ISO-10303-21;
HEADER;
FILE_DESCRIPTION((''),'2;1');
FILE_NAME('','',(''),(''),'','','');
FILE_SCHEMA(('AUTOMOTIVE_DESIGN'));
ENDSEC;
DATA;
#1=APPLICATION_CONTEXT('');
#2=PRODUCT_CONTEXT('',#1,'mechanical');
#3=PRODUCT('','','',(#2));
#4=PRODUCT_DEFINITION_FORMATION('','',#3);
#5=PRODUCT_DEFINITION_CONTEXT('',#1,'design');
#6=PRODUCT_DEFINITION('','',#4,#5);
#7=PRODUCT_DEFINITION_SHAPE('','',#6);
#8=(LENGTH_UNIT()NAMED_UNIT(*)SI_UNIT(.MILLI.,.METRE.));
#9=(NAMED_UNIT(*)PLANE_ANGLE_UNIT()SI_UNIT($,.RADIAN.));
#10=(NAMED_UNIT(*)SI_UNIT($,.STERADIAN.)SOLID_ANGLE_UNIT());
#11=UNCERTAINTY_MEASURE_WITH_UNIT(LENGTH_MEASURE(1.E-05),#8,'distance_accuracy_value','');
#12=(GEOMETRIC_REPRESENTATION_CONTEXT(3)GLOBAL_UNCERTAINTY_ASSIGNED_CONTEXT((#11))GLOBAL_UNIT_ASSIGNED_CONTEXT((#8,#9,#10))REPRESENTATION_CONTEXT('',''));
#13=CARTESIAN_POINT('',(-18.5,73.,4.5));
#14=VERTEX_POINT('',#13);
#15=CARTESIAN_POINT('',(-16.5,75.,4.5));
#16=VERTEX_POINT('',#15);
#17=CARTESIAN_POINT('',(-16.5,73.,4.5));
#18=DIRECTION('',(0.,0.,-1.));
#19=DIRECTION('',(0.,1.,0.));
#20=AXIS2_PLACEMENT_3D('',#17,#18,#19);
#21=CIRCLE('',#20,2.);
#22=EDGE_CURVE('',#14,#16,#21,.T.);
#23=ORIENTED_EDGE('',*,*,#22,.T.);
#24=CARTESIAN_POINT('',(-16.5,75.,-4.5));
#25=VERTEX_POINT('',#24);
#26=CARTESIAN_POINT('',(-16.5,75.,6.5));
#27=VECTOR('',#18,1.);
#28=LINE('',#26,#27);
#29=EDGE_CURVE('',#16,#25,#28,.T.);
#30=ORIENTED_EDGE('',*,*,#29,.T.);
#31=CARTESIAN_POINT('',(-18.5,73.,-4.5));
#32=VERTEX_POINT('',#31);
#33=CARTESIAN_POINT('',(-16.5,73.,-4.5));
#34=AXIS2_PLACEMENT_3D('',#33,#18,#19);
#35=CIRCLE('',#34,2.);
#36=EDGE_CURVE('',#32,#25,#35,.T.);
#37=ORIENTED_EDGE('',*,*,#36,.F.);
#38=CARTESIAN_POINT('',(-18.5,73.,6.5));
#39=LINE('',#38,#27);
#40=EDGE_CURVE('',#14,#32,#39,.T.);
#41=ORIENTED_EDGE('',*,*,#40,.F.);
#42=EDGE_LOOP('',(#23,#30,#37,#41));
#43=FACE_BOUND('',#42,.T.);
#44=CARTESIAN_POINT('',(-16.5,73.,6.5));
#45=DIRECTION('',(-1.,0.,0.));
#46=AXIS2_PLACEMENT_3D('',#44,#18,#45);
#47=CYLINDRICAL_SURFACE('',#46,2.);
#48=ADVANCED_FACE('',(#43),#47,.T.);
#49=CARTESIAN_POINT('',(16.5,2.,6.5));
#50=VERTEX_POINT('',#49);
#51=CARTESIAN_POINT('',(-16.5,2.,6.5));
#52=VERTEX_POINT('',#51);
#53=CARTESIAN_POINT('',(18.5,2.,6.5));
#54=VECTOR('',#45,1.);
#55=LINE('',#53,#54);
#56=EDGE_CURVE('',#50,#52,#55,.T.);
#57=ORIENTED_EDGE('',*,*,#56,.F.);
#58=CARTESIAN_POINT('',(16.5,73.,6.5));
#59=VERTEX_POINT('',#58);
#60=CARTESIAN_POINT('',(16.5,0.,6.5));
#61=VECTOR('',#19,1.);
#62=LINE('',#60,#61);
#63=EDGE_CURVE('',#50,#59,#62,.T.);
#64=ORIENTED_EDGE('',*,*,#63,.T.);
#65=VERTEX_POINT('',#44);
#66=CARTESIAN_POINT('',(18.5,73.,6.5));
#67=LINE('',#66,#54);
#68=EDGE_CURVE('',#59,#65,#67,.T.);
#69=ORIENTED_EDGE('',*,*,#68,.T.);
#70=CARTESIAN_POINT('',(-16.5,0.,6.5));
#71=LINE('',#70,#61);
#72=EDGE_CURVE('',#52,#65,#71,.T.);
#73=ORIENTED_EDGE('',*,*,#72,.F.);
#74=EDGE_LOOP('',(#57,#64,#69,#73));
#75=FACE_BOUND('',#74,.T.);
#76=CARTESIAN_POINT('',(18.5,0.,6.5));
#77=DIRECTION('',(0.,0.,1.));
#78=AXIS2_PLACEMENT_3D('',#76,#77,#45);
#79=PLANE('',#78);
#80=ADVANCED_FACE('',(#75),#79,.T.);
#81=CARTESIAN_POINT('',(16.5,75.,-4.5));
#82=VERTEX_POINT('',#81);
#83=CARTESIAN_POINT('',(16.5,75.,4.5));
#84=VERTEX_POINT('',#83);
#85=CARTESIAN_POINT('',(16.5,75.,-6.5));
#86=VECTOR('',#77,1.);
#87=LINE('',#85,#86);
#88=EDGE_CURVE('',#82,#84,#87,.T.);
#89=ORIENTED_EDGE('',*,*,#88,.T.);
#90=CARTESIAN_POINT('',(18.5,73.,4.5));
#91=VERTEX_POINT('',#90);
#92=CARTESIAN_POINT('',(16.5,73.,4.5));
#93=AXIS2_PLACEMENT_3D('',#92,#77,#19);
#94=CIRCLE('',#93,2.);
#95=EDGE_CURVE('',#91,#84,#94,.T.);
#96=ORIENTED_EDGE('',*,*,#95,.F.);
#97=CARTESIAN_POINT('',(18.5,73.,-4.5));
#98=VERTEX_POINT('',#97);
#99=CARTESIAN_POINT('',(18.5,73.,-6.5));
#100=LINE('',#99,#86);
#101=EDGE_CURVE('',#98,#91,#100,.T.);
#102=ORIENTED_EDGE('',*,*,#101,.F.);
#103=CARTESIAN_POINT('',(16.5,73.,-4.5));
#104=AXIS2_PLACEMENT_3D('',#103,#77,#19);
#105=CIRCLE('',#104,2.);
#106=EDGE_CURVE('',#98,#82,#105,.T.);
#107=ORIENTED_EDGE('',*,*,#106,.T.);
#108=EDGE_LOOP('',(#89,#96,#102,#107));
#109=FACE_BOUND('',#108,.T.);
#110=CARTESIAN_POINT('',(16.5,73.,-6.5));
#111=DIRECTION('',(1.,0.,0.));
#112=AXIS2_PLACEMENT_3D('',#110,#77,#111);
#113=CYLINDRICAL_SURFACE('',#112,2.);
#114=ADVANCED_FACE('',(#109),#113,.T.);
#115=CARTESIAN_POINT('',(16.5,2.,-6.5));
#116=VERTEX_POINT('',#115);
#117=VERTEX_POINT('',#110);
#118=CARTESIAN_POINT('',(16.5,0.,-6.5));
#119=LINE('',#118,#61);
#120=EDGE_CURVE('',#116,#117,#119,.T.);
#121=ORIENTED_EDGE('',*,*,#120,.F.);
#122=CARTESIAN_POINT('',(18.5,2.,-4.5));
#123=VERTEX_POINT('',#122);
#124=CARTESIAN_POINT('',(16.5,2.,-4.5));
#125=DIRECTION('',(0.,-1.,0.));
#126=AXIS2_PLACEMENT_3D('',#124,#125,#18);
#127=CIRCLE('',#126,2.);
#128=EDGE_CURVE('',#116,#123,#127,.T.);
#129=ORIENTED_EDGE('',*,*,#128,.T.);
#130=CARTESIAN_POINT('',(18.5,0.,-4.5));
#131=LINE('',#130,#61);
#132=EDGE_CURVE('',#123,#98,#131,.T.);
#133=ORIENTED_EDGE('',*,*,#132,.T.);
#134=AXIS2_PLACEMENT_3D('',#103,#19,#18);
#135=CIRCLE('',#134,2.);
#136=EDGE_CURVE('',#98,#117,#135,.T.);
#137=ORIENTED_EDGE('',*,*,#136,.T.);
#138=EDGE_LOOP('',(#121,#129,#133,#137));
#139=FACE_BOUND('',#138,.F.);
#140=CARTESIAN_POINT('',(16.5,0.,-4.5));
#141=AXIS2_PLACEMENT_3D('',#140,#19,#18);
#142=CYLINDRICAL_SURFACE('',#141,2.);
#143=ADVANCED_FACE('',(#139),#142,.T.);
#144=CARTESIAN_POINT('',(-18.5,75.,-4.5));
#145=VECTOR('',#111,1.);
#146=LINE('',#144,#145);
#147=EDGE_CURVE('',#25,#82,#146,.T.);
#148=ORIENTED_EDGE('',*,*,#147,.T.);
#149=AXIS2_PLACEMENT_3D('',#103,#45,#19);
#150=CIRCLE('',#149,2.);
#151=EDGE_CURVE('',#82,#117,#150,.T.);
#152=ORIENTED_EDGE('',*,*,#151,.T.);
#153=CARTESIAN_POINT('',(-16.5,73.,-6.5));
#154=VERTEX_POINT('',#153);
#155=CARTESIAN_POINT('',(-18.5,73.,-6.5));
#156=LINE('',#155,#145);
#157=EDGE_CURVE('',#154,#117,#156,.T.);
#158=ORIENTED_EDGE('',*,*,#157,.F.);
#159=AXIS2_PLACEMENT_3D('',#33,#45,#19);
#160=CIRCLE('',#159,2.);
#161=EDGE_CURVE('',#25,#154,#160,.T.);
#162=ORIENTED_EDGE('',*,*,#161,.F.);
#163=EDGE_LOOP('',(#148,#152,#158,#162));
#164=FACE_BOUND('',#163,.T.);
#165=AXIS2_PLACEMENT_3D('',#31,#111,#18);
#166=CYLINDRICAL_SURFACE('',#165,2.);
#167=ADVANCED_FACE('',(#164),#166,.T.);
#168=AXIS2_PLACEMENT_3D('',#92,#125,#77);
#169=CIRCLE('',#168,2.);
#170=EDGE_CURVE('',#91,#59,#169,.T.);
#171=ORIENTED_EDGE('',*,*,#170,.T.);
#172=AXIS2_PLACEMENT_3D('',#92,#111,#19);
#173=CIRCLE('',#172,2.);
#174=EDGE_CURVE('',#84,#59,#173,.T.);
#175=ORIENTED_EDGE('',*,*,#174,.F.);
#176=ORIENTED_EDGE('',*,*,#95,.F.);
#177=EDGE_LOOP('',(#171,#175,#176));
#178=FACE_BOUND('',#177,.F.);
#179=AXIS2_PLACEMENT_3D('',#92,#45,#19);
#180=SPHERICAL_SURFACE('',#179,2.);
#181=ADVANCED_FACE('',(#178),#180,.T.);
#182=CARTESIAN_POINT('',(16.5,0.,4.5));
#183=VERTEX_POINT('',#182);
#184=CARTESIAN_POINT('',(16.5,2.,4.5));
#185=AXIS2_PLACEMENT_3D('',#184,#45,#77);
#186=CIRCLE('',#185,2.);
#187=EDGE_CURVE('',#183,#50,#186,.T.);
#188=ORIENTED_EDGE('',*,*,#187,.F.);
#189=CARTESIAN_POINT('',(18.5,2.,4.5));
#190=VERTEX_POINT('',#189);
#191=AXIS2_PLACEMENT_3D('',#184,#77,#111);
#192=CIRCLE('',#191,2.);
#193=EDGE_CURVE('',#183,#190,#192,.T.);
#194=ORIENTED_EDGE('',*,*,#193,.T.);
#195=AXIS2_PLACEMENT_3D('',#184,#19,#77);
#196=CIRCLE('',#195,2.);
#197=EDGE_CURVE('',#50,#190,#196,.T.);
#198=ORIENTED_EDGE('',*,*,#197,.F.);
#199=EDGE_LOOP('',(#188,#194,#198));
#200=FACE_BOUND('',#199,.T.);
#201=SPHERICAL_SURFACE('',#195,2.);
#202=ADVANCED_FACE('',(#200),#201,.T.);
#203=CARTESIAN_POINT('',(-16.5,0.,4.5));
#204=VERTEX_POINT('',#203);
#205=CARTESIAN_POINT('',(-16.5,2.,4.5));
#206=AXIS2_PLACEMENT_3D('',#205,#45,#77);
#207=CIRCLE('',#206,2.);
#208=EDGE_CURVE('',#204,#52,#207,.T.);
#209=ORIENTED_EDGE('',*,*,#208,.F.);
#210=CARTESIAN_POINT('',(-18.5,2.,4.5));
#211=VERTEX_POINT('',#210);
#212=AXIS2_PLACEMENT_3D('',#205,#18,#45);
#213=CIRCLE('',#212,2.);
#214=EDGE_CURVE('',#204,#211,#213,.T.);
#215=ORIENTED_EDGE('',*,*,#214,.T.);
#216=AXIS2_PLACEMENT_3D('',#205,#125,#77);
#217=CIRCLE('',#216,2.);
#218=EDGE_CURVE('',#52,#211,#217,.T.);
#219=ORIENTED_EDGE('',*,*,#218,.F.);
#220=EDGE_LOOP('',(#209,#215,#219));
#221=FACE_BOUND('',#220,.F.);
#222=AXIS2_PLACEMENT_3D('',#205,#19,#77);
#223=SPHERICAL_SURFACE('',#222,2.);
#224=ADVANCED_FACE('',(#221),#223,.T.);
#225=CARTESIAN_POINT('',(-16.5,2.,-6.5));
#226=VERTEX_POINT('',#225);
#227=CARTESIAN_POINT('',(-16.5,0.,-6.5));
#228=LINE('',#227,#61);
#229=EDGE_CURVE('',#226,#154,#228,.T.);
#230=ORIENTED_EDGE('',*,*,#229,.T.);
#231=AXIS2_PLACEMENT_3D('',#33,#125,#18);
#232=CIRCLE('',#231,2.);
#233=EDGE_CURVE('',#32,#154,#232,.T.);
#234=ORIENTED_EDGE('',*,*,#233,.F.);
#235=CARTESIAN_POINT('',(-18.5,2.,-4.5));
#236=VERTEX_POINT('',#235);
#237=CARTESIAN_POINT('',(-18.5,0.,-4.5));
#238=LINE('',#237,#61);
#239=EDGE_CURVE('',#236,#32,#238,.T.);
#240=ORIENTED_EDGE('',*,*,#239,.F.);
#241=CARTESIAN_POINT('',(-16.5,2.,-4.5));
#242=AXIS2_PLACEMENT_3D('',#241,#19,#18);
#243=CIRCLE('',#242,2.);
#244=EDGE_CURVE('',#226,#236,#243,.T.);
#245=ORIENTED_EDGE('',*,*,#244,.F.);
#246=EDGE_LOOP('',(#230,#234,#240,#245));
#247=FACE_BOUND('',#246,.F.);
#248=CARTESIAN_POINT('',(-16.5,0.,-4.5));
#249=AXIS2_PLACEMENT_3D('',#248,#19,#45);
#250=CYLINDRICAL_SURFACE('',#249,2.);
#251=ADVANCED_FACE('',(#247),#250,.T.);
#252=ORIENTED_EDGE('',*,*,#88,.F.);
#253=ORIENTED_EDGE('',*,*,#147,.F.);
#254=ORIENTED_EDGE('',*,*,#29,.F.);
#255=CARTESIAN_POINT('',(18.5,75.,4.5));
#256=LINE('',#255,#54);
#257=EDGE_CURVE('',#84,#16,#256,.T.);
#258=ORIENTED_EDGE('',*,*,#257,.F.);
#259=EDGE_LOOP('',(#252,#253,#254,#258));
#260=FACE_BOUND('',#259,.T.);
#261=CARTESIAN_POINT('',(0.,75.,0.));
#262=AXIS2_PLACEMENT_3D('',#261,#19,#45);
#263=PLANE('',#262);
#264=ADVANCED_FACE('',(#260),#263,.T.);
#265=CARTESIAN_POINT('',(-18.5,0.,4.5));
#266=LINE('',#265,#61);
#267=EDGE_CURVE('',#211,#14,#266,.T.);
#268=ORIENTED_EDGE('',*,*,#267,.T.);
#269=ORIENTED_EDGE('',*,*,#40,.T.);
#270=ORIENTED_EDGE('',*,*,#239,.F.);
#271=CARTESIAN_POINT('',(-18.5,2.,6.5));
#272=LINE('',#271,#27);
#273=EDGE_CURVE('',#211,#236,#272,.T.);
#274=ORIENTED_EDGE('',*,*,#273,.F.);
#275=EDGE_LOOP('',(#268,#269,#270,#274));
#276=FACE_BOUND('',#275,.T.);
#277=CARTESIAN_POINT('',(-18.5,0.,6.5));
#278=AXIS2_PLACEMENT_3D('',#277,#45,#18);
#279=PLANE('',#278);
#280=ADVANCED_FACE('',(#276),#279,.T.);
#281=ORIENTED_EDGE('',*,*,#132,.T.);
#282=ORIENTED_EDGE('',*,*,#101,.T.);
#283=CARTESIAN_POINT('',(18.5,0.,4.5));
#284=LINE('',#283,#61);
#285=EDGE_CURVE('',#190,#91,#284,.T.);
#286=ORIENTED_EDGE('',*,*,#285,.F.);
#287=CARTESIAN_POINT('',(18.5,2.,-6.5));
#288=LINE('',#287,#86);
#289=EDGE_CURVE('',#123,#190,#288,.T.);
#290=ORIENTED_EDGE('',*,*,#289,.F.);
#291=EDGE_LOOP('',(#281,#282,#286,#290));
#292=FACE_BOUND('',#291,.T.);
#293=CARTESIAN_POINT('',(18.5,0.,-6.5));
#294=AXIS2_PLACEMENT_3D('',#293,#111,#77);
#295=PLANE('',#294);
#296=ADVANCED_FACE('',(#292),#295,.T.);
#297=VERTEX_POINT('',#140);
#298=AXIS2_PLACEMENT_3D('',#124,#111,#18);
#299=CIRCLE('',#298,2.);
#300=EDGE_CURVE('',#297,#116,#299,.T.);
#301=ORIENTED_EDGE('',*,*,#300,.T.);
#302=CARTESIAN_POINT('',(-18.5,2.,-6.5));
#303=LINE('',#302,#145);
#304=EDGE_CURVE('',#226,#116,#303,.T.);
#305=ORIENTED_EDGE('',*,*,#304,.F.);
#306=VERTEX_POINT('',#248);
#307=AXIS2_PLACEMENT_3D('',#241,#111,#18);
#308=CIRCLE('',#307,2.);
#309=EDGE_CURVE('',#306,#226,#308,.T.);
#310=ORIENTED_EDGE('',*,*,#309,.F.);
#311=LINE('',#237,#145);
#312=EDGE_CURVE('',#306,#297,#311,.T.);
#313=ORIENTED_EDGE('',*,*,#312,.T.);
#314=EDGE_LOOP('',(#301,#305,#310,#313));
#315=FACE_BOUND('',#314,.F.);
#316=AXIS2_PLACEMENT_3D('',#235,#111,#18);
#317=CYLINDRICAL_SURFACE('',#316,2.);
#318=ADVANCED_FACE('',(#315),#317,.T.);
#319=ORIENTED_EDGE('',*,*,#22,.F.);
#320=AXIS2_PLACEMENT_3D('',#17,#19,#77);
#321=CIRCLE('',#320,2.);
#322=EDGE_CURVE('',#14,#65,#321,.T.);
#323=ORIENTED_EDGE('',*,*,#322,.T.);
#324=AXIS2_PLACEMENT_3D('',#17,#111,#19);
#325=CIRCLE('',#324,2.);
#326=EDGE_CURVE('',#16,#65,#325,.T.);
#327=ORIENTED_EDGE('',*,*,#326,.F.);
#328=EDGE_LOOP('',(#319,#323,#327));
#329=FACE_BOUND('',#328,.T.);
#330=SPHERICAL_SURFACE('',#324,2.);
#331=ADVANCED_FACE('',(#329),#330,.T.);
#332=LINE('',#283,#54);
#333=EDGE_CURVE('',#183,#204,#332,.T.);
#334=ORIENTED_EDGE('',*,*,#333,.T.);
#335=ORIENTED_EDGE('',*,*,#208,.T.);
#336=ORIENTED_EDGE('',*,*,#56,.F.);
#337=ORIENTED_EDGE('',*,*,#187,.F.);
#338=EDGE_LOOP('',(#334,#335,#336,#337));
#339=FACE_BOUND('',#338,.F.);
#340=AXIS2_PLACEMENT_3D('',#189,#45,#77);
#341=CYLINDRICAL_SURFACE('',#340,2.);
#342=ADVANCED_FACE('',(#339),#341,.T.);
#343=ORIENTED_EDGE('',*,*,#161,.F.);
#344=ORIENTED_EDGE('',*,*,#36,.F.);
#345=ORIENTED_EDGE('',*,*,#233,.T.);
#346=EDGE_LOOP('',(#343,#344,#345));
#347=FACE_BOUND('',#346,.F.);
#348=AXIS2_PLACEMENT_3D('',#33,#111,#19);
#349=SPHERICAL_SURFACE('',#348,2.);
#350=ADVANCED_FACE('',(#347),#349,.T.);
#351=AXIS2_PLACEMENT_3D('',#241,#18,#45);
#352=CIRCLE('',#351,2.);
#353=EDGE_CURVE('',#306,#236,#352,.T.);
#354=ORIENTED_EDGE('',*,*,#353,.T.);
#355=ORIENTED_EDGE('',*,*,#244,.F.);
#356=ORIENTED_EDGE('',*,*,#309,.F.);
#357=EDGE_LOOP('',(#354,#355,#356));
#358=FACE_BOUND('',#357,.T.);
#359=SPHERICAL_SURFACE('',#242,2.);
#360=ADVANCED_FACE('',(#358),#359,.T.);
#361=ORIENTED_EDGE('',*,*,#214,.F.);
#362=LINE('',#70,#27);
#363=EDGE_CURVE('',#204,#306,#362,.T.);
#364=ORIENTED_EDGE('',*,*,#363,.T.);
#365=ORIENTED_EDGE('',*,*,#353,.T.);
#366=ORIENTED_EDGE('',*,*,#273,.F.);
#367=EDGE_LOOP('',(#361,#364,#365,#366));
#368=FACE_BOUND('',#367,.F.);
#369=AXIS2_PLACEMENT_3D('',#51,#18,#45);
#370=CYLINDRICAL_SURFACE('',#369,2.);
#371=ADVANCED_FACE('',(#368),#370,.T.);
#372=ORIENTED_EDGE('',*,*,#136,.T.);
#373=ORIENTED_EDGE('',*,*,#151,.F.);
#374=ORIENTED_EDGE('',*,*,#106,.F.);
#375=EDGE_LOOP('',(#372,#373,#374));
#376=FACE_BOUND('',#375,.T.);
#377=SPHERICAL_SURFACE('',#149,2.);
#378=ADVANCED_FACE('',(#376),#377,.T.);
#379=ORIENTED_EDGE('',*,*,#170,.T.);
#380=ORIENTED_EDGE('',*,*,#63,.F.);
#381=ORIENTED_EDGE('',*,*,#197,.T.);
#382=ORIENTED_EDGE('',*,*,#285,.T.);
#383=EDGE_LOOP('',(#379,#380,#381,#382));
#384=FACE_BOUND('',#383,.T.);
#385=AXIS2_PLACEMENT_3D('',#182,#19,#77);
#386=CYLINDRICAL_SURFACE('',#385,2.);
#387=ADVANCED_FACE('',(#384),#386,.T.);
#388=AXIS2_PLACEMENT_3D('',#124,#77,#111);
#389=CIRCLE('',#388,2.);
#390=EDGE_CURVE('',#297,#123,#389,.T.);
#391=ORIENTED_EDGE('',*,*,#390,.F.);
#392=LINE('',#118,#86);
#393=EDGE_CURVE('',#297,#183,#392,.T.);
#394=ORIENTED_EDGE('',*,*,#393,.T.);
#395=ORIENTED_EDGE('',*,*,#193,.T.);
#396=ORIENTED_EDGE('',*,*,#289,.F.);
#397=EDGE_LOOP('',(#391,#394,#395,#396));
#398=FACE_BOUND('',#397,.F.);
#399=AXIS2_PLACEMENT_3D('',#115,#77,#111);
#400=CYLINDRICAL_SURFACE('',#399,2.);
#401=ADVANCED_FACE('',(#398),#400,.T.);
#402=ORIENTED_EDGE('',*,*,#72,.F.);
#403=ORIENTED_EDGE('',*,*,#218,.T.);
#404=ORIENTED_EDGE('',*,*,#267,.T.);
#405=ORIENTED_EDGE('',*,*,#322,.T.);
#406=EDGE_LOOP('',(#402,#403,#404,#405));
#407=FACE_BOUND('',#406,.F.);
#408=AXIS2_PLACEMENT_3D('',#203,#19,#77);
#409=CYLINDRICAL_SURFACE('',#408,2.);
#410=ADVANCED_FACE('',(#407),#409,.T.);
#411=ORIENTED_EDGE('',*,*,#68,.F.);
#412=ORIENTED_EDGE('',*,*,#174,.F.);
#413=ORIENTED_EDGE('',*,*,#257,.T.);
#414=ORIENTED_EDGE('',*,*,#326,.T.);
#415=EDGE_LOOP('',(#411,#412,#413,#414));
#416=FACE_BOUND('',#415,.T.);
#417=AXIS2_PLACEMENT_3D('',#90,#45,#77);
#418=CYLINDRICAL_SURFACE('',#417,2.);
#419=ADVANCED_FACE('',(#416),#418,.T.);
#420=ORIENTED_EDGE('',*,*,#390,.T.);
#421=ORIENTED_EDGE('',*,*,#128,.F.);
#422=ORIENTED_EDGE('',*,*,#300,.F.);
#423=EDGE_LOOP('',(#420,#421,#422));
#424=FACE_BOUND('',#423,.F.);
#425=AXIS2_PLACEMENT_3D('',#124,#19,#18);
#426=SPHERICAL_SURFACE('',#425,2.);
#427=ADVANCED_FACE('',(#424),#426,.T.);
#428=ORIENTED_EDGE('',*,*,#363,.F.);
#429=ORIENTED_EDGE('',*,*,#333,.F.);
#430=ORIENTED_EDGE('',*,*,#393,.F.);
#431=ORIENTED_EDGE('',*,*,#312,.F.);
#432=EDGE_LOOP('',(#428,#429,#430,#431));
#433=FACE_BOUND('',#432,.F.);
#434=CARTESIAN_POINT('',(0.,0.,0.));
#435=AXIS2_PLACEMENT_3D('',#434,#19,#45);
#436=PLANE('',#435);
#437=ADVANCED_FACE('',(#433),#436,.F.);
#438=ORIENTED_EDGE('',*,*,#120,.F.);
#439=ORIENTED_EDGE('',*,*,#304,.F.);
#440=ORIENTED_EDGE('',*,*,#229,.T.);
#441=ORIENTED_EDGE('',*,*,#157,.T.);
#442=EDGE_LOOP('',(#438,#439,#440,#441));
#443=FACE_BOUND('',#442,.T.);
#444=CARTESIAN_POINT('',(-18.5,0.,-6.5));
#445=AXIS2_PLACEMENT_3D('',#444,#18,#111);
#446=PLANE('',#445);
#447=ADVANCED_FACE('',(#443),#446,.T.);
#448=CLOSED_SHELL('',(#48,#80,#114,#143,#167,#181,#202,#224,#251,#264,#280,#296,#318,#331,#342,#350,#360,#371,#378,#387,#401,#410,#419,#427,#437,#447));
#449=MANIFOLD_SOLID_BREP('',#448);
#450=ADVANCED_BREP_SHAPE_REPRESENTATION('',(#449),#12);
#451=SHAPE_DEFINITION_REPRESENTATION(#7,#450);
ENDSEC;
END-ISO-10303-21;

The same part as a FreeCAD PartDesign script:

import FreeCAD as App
import Part
import Sketcher


def add_polygon(sketch, points):
    """Adds a closed chain of lines whose ends are joined by coincident constraints."""
    first, n = sketch.GeometryCount, len(points)
    for a, b in zip(points, points[1:] + points[:1]):
        sketch.addGeometry(Part.LineSegment(App.Vector(*a, 0), App.Vector(*b, 0)), False)
    for i in range(n):
        sketch.addConstraint(Sketcher.Constraint("Coincident", first + i, 2, first + (i + 1) % n, 1))

doc = App.newDocument("Part")
body = doc.addObject("PartDesign::Body", "Body")

# Sketch on XZ plane
sketch1 = body.newObject("Sketcher::SketchObject", "Sketch")
sketch1.AttachmentSupport = (doc.getObject("XZ_Plane"), [""])
sketch1.MapMode = "FlatFace"
add_polygon(sketch1, [(-18.5, 6.5), (18.5, 6.5), (18.5, -6.5), (-18.5, -6.5)])  # lines 0-3
sketch1.addConstraint([
    Sketcher.Constraint("Horizontal", 0),
    Sketcher.Constraint("Vertical", 1),
    Sketcher.Constraint("Horizontal", 2),
    Sketcher.Constraint("Vertical", 3),
    Sketcher.Constraint("Symmetric", 0, 2, 2, 2, -1, 1),
    Sketcher.Constraint("DistanceX", 0, 1, 0, 2, 37.0),
    Sketcher.Constraint("DistanceY", 1, 2, 1, 1, 13.0),
])
pad1 = body.newObject("PartDesign::Pad", "Pad")
pad1.Profile = sketch1
pad1.Length = 75
pad1.Reversed = True
doc.recompute()

fillet = body.newObject("PartDesign::Fillet", "Fillet")
fillet.Base = (pad1, ["Edge1"])
fillet.UseAllEdges = True
fillet.Radius = 2

doc.recompute()
